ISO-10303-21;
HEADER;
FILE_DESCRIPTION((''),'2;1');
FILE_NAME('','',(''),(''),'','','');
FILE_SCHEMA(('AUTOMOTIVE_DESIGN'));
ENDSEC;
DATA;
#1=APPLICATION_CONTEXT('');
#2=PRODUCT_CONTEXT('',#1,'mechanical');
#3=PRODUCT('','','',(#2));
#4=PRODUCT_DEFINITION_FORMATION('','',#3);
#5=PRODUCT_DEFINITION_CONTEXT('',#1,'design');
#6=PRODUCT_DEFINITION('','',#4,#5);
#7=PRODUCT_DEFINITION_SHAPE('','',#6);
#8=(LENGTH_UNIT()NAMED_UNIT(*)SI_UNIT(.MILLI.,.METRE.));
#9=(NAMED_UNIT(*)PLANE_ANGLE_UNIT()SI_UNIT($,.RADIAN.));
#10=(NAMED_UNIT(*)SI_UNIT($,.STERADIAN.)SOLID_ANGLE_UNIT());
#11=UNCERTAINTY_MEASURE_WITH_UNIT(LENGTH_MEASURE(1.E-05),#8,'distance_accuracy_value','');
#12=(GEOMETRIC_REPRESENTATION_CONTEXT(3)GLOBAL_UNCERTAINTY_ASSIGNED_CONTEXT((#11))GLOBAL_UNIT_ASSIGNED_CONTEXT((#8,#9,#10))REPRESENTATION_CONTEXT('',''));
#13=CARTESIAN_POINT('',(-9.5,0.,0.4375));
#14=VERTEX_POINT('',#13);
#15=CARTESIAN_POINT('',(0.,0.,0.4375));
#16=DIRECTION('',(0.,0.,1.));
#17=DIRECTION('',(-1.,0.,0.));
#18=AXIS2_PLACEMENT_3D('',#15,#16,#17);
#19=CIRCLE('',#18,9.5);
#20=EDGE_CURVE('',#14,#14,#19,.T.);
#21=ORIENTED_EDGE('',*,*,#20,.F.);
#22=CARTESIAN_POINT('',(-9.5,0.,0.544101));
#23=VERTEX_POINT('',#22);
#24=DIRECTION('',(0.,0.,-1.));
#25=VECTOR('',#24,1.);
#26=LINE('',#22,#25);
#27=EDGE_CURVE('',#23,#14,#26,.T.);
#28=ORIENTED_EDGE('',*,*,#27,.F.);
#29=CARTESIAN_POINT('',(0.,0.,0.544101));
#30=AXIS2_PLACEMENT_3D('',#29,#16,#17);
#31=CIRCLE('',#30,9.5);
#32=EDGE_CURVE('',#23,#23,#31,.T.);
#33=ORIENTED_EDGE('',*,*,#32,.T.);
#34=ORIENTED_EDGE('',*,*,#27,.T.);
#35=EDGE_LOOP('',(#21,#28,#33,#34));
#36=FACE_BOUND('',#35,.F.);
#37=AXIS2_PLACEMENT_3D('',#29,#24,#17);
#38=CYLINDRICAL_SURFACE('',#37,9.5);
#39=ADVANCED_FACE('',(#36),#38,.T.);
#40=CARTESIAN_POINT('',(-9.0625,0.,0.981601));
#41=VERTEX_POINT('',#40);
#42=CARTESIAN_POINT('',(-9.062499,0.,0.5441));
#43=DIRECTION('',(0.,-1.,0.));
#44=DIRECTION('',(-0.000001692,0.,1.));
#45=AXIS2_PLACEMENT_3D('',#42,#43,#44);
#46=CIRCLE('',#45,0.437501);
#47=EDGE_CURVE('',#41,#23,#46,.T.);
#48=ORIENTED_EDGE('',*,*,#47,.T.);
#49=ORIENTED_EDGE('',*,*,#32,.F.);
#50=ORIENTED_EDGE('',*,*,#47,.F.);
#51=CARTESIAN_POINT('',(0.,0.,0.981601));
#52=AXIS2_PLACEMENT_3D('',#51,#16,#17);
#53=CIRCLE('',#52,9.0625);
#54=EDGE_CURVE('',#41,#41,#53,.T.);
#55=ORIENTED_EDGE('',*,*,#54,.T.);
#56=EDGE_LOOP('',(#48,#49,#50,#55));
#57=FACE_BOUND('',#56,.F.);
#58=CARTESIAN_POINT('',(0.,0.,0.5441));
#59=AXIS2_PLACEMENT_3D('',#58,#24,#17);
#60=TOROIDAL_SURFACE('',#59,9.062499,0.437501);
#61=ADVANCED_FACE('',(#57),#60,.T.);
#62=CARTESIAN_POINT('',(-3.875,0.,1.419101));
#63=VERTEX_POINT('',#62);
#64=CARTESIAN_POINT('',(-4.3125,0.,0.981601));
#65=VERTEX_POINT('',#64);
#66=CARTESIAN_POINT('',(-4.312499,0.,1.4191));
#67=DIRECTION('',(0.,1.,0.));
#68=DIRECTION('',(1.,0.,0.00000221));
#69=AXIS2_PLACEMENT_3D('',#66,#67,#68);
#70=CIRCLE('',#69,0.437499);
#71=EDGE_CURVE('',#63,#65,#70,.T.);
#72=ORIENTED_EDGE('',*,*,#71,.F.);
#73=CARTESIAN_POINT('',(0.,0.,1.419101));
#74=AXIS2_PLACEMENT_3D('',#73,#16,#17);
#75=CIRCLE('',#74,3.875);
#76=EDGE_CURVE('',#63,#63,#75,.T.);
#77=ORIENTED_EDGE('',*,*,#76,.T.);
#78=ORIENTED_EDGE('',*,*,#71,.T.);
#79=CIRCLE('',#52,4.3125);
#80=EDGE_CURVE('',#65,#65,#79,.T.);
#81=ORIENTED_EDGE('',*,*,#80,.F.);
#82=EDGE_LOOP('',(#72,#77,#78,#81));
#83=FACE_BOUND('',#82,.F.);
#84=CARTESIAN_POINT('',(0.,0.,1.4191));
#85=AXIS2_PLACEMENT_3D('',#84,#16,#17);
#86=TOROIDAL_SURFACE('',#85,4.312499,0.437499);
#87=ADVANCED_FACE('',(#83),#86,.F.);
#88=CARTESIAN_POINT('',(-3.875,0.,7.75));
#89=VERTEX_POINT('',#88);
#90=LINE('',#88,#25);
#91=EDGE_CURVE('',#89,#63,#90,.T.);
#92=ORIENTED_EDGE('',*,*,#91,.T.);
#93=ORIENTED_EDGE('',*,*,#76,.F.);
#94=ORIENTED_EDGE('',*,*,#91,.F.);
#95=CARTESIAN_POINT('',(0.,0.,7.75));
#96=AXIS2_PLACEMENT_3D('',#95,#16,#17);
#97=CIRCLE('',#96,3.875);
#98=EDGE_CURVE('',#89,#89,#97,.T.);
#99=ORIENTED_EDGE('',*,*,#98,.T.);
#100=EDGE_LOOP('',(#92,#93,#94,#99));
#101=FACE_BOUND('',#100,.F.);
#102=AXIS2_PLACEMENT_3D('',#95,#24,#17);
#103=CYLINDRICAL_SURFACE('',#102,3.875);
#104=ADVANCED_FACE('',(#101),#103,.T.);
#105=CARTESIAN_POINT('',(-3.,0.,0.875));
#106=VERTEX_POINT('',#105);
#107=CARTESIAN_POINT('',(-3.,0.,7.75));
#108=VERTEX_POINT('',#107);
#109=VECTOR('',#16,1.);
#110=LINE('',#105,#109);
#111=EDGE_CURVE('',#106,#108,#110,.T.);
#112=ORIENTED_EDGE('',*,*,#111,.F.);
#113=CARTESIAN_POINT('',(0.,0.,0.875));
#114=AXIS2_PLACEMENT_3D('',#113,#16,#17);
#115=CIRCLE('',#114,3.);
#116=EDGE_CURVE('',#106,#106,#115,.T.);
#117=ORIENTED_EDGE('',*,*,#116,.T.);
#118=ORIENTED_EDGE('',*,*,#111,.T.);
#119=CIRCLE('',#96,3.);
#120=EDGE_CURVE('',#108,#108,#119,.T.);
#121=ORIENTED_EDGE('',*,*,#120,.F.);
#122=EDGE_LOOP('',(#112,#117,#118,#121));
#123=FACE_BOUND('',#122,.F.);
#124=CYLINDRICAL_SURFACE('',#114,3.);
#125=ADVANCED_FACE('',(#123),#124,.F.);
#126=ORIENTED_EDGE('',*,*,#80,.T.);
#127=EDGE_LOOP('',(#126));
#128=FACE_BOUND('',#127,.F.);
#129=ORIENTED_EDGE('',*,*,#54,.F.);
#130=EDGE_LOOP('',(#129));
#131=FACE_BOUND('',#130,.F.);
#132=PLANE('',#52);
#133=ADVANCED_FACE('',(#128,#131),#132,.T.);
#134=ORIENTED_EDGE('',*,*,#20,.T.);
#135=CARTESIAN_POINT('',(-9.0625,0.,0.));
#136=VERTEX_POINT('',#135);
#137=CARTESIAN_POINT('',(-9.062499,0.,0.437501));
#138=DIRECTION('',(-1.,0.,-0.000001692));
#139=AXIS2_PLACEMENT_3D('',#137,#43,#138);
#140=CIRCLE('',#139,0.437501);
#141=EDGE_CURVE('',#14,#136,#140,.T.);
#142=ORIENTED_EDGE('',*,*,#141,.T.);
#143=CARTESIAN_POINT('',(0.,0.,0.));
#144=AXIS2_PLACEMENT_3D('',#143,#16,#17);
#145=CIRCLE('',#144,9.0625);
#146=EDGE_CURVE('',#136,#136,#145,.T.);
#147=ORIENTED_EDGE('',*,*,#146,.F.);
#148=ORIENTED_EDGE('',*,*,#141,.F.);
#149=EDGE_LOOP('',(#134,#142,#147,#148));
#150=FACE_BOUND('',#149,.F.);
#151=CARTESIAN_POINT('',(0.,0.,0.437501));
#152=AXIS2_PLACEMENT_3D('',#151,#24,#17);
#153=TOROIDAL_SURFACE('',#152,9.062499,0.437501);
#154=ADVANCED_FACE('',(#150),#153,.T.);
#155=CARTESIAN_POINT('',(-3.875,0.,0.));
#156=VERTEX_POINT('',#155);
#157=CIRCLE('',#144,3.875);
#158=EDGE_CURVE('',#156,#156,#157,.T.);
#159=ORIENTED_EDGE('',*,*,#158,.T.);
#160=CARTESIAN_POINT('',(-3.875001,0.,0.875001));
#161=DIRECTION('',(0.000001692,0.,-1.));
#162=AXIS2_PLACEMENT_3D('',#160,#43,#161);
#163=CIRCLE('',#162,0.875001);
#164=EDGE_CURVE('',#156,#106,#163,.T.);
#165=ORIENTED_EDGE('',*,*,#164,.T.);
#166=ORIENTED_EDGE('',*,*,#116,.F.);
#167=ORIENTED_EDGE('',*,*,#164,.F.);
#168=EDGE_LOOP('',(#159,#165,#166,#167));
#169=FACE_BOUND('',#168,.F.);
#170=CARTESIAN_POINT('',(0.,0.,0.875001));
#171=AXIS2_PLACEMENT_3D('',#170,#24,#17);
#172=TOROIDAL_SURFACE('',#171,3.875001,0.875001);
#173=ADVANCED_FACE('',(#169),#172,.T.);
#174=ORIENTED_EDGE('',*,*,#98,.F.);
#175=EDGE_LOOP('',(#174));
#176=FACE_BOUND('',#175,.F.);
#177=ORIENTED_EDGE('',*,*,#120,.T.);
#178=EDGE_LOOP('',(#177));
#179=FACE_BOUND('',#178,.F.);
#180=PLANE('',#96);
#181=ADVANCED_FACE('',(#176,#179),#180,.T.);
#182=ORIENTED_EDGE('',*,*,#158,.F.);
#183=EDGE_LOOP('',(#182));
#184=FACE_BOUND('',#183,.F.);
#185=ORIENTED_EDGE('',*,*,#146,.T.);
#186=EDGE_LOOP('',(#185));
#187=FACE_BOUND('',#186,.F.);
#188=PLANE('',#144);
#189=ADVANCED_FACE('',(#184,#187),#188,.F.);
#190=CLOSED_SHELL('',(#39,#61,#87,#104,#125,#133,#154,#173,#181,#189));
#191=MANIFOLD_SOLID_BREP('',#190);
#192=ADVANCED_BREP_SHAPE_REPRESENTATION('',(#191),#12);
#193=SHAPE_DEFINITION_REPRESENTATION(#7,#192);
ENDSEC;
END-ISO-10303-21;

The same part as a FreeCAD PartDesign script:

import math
import FreeCAD as App
import Part
import Sketcher
from FreeCAD import Vector
Q = App.Units.Quantity

doc = App.newDocument("Part")
body = doc.addObject("PartDesign::Body", "Body")

# Sketch on XZ plane
sketch1 = body.newObject("Sketcher::SketchObject", "Sketch")
sketch1.AttachmentSupport = (doc.getObject("XZ_Plane"), [""])
sketch1.MapMode = "FlatFace"
sketch1.addGeometry([
    Part.LineSegment(Vector(-9.06, 0, 0), Vector(-3.88, 0, 0)),  # 0
    Part.ArcOfCircle(Part.Circle(Vector(-3.88, 0.88, 0), Vector(0, 0, 1), 0.88), math.radians(-90), math.radians(0)),  # 1
    Part.LineSegment(Vector(-3, 0.88, 0), Vector(-3, 7.75, 0)),  # 2
    Part.LineSegment(Vector(-3, 7.75, 0), Vector(-3.88, 7.75, 0)),  # 3
    Part.LineSegment(Vector(-3.88, 7.75, 0), Vector(-3.88, 1.42, 0)),  # 4
    Part.ArcOfCircle(Part.Circle(Vector(-4.31, 1.42, 0), Vector(0, 0, 1), 0.44), math.radians(-90), math.radians(0)),  # 5
    Part.LineSegment(Vector(-4.31, 0.98, 0), Vector(-9.06, 0.98, 0)),  # 6
    Part.ArcOfCircle(Part.Circle(Vector(-9.06, 0.54, 0), Vector(0, 0, 1), 0.44), math.radians(90), math.radians(180)),  # 7
    Part.LineSegment(Vector(-9.5, 0.54, 0), Vector(-9.5, 0.44, 0)),  # 8
    Part.ArcOfCircle(Part.Circle(Vector(-9.06, 0.44, 0), Vector(0, 0, 1), 0.44), math.radians(-180), math.radians(-90)),  # 9
], False)
sketch1.addConstraint([
    Sketcher.Constraint("Tangent", 0, 2, 1, 1),
    Sketcher.Constraint("Tangent", 1, 2, 2, 1),
    Sketcher.Constraint("Coincident", 2, 2, 3, 1),
    Sketcher.Constraint("Coincident", 3, 2, 4, 1),
    Sketcher.Constraint("Coincident", 4, 2, 5, 2),
    Sketcher.Constraint("Coincident", 5, 1, 6, 1),
    Sketcher.Constraint("Tangent", 6, 2, 7, 1),
    Sketcher.Constraint("Tangent", 7, 2, 8, 1),
    Sketcher.Constraint("Tangent", 8, 2, 9, 1),
    Sketcher.Constraint("Tangent", 9, 2, 0, 1),
    Sketcher.Constraint("Horizontal", 0),
    Sketcher.Constraint("Vertical", 2),
    Sketcher.Constraint("Horizontal", 3),
    Sketcher.Constraint("Vertical", 4),
    Sketcher.Constraint("Horizontal", 6),
    Sketcher.Constraint("Vertical", 8),
    Sketcher.Constraint("Equal", 5, 7),
    Sketcher.Constraint("Equal", 7, 9),
    Sketcher.Constraint("PointOnObject", 0, 2, -1),
    Sketcher.Constraint("Horizontal", 5, 3, 4, 2),
    Sketcher.Constraint("Vertical", 0, 2, 3, 2),
    Sketcher.Constraint("DistanceX", 1, 2, -1, 1, Q("3 mm")),
    Sketcher.Constraint("Radius", 1, Q("0.875001 mm")),
    Sketcher.Constraint("DistanceX", 6, 2, 6, 1, Q("4.75 mm")),
    Sketcher.Constraint("DistanceX", 7, 2, -1, 1, Q("9.5 mm")),
    Sketcher.Constraint("Radius", 5, Q("0.437499 mm")),
    Sketcher.Constraint("DistanceY", 2, 1, 2, 2, Q("6.875 mm")),
    Sketcher.Constraint("DistanceY", 4, 2, 4, 1, Q("6.330899 mm")),
])
revolution = body.newObject("PartDesign::Revolution", "Revolution")
revolution.Profile = sketch1
revolution.ReferenceAxis = (sketch1, ["V_Axis"])
revolution.Angle = 360

doc.recompute()
